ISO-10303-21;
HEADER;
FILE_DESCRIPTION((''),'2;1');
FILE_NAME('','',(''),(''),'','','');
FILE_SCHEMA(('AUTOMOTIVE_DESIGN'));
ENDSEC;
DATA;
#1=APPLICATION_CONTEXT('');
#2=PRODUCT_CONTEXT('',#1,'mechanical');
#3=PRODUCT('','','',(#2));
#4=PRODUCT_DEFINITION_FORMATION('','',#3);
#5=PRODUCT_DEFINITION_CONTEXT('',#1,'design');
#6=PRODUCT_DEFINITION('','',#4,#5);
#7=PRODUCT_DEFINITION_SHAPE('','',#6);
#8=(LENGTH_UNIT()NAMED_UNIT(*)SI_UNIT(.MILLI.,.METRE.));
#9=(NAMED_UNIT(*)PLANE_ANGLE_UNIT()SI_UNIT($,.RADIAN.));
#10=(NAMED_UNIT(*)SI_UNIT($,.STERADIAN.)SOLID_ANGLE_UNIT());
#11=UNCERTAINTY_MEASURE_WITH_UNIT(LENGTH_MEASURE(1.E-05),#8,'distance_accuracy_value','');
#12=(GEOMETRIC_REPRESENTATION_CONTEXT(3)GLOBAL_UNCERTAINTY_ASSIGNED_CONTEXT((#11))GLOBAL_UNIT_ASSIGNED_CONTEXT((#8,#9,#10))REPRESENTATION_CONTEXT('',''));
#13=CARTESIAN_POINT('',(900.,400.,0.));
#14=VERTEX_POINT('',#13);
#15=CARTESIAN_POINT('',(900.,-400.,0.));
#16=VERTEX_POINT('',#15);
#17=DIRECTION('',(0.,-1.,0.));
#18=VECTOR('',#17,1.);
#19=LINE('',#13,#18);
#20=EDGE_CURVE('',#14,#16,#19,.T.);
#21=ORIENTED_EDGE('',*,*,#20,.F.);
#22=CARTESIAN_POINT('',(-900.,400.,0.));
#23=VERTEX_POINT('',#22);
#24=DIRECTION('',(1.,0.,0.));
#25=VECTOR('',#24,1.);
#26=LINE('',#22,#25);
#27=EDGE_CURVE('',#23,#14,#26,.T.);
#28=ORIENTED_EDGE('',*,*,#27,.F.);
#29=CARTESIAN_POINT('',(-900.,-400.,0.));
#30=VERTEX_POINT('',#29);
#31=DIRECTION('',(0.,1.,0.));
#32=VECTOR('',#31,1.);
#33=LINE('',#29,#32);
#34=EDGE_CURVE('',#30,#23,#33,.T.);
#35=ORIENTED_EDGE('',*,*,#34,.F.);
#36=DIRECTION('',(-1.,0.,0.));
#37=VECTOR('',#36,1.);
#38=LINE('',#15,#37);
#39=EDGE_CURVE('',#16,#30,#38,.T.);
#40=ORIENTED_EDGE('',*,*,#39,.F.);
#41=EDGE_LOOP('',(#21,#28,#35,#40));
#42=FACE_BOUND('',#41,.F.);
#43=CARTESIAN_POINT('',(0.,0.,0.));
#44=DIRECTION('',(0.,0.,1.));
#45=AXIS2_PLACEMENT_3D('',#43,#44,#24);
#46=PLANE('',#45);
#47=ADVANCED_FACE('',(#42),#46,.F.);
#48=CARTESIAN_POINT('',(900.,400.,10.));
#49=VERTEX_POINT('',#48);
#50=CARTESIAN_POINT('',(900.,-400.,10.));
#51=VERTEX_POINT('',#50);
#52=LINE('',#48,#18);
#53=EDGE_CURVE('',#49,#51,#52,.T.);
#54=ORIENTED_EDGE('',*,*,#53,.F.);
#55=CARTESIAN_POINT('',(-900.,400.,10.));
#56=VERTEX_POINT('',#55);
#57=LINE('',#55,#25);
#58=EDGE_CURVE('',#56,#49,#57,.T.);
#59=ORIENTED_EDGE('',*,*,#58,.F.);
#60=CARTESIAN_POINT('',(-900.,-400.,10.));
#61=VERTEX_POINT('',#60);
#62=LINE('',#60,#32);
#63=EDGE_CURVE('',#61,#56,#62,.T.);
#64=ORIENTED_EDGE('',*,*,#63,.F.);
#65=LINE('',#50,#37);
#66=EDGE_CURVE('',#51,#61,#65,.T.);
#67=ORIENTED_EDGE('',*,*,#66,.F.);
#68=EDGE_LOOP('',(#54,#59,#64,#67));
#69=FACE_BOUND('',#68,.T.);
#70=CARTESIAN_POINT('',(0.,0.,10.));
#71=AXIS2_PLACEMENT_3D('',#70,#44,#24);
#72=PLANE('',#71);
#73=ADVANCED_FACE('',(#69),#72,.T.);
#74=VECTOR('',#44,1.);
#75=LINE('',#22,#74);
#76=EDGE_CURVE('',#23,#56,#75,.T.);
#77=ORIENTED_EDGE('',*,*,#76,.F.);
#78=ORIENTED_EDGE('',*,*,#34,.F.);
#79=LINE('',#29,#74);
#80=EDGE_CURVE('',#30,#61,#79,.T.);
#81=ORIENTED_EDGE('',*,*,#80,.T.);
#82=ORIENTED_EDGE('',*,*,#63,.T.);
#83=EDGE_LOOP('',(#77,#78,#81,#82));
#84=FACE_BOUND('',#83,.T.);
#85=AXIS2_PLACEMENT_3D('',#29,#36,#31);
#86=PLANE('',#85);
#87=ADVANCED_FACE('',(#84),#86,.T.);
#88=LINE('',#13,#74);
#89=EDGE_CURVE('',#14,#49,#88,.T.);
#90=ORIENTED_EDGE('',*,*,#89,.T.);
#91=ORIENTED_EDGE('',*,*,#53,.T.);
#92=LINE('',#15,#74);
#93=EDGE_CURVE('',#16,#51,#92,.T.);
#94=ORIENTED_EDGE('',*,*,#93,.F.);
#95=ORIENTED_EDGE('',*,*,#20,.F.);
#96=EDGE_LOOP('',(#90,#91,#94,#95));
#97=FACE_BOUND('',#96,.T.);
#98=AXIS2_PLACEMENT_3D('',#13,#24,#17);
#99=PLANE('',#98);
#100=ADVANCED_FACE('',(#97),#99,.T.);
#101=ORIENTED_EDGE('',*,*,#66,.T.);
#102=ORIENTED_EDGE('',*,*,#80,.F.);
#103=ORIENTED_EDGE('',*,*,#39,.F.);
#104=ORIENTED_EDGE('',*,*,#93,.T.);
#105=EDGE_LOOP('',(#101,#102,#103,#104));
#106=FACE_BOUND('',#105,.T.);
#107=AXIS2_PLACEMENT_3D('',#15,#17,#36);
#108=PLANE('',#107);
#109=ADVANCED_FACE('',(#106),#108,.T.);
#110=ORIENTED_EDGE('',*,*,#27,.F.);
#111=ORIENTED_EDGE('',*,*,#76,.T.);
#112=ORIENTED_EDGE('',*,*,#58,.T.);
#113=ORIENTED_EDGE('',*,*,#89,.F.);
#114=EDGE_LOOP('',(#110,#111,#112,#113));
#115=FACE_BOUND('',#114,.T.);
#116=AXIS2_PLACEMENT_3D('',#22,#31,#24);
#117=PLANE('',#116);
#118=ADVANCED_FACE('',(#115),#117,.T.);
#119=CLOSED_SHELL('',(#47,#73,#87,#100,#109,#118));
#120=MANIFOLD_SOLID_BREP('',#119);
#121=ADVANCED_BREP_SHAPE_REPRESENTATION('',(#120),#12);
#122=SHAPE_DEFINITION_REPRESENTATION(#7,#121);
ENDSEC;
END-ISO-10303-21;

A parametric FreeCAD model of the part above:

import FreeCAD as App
import Part
import Sketcher

V = App.Vector

doc = App.newDocument("Part")
body = doc.addObject("PartDesign::Body", "Body")

# Sketch on XY plane
sketch1 = body.newObject("Sketcher::SketchObject", "Sketch")
sketch1.AttachmentSupport = (doc.getObject("XY_Plane"), [""])
sketch1.MapMode = "FlatFace"
sketch1.addGeometry([
    Part.LineSegment(V(900, 400, 0), V(-900, 400, 0)),
    Part.LineSegment(V(-900, 400, 0), V(-900, -400, 0)),
    Part.LineSegment(V(-900, -400, 0), V(900, -400, 0)),
    Part.LineSegment(V(900, -400, 0), V(900, 400, 0)),
], False)
sketch1.addConstraint([
    Sketcher.Constraint("Coincident", 0, 2, 1, 1),
    Sketcher.Constraint("Coincident", 1, 2, 2, 1),
    Sketcher.Constraint("Coincident", 2, 2, 3, 1),
    Sketcher.Constraint("Coincident", 3, 2, 0, 1),
    Sketcher.Constraint("Horizontal", 0),
    Sketcher.Constraint("Vertical", 1),
    Sketcher.Constraint("Horizontal", 2),
    Sketcher.Constraint("Vertical", 3),
    Sketcher.Constraint("Symmetric", 0, 2, 2, 2, -1, 1),
    Sketcher.Constraint("DistanceX", 0, 2, 0, 1, 1800.0),
    Sketcher.Constraint("DistanceY", 1, 2, 1, 1, 800.0),
])
pad1 = body.newObject("PartDesign::Pad", "Pad")
pad1.Profile = sketch1
pad1.Length = 10

doc.recompute()
